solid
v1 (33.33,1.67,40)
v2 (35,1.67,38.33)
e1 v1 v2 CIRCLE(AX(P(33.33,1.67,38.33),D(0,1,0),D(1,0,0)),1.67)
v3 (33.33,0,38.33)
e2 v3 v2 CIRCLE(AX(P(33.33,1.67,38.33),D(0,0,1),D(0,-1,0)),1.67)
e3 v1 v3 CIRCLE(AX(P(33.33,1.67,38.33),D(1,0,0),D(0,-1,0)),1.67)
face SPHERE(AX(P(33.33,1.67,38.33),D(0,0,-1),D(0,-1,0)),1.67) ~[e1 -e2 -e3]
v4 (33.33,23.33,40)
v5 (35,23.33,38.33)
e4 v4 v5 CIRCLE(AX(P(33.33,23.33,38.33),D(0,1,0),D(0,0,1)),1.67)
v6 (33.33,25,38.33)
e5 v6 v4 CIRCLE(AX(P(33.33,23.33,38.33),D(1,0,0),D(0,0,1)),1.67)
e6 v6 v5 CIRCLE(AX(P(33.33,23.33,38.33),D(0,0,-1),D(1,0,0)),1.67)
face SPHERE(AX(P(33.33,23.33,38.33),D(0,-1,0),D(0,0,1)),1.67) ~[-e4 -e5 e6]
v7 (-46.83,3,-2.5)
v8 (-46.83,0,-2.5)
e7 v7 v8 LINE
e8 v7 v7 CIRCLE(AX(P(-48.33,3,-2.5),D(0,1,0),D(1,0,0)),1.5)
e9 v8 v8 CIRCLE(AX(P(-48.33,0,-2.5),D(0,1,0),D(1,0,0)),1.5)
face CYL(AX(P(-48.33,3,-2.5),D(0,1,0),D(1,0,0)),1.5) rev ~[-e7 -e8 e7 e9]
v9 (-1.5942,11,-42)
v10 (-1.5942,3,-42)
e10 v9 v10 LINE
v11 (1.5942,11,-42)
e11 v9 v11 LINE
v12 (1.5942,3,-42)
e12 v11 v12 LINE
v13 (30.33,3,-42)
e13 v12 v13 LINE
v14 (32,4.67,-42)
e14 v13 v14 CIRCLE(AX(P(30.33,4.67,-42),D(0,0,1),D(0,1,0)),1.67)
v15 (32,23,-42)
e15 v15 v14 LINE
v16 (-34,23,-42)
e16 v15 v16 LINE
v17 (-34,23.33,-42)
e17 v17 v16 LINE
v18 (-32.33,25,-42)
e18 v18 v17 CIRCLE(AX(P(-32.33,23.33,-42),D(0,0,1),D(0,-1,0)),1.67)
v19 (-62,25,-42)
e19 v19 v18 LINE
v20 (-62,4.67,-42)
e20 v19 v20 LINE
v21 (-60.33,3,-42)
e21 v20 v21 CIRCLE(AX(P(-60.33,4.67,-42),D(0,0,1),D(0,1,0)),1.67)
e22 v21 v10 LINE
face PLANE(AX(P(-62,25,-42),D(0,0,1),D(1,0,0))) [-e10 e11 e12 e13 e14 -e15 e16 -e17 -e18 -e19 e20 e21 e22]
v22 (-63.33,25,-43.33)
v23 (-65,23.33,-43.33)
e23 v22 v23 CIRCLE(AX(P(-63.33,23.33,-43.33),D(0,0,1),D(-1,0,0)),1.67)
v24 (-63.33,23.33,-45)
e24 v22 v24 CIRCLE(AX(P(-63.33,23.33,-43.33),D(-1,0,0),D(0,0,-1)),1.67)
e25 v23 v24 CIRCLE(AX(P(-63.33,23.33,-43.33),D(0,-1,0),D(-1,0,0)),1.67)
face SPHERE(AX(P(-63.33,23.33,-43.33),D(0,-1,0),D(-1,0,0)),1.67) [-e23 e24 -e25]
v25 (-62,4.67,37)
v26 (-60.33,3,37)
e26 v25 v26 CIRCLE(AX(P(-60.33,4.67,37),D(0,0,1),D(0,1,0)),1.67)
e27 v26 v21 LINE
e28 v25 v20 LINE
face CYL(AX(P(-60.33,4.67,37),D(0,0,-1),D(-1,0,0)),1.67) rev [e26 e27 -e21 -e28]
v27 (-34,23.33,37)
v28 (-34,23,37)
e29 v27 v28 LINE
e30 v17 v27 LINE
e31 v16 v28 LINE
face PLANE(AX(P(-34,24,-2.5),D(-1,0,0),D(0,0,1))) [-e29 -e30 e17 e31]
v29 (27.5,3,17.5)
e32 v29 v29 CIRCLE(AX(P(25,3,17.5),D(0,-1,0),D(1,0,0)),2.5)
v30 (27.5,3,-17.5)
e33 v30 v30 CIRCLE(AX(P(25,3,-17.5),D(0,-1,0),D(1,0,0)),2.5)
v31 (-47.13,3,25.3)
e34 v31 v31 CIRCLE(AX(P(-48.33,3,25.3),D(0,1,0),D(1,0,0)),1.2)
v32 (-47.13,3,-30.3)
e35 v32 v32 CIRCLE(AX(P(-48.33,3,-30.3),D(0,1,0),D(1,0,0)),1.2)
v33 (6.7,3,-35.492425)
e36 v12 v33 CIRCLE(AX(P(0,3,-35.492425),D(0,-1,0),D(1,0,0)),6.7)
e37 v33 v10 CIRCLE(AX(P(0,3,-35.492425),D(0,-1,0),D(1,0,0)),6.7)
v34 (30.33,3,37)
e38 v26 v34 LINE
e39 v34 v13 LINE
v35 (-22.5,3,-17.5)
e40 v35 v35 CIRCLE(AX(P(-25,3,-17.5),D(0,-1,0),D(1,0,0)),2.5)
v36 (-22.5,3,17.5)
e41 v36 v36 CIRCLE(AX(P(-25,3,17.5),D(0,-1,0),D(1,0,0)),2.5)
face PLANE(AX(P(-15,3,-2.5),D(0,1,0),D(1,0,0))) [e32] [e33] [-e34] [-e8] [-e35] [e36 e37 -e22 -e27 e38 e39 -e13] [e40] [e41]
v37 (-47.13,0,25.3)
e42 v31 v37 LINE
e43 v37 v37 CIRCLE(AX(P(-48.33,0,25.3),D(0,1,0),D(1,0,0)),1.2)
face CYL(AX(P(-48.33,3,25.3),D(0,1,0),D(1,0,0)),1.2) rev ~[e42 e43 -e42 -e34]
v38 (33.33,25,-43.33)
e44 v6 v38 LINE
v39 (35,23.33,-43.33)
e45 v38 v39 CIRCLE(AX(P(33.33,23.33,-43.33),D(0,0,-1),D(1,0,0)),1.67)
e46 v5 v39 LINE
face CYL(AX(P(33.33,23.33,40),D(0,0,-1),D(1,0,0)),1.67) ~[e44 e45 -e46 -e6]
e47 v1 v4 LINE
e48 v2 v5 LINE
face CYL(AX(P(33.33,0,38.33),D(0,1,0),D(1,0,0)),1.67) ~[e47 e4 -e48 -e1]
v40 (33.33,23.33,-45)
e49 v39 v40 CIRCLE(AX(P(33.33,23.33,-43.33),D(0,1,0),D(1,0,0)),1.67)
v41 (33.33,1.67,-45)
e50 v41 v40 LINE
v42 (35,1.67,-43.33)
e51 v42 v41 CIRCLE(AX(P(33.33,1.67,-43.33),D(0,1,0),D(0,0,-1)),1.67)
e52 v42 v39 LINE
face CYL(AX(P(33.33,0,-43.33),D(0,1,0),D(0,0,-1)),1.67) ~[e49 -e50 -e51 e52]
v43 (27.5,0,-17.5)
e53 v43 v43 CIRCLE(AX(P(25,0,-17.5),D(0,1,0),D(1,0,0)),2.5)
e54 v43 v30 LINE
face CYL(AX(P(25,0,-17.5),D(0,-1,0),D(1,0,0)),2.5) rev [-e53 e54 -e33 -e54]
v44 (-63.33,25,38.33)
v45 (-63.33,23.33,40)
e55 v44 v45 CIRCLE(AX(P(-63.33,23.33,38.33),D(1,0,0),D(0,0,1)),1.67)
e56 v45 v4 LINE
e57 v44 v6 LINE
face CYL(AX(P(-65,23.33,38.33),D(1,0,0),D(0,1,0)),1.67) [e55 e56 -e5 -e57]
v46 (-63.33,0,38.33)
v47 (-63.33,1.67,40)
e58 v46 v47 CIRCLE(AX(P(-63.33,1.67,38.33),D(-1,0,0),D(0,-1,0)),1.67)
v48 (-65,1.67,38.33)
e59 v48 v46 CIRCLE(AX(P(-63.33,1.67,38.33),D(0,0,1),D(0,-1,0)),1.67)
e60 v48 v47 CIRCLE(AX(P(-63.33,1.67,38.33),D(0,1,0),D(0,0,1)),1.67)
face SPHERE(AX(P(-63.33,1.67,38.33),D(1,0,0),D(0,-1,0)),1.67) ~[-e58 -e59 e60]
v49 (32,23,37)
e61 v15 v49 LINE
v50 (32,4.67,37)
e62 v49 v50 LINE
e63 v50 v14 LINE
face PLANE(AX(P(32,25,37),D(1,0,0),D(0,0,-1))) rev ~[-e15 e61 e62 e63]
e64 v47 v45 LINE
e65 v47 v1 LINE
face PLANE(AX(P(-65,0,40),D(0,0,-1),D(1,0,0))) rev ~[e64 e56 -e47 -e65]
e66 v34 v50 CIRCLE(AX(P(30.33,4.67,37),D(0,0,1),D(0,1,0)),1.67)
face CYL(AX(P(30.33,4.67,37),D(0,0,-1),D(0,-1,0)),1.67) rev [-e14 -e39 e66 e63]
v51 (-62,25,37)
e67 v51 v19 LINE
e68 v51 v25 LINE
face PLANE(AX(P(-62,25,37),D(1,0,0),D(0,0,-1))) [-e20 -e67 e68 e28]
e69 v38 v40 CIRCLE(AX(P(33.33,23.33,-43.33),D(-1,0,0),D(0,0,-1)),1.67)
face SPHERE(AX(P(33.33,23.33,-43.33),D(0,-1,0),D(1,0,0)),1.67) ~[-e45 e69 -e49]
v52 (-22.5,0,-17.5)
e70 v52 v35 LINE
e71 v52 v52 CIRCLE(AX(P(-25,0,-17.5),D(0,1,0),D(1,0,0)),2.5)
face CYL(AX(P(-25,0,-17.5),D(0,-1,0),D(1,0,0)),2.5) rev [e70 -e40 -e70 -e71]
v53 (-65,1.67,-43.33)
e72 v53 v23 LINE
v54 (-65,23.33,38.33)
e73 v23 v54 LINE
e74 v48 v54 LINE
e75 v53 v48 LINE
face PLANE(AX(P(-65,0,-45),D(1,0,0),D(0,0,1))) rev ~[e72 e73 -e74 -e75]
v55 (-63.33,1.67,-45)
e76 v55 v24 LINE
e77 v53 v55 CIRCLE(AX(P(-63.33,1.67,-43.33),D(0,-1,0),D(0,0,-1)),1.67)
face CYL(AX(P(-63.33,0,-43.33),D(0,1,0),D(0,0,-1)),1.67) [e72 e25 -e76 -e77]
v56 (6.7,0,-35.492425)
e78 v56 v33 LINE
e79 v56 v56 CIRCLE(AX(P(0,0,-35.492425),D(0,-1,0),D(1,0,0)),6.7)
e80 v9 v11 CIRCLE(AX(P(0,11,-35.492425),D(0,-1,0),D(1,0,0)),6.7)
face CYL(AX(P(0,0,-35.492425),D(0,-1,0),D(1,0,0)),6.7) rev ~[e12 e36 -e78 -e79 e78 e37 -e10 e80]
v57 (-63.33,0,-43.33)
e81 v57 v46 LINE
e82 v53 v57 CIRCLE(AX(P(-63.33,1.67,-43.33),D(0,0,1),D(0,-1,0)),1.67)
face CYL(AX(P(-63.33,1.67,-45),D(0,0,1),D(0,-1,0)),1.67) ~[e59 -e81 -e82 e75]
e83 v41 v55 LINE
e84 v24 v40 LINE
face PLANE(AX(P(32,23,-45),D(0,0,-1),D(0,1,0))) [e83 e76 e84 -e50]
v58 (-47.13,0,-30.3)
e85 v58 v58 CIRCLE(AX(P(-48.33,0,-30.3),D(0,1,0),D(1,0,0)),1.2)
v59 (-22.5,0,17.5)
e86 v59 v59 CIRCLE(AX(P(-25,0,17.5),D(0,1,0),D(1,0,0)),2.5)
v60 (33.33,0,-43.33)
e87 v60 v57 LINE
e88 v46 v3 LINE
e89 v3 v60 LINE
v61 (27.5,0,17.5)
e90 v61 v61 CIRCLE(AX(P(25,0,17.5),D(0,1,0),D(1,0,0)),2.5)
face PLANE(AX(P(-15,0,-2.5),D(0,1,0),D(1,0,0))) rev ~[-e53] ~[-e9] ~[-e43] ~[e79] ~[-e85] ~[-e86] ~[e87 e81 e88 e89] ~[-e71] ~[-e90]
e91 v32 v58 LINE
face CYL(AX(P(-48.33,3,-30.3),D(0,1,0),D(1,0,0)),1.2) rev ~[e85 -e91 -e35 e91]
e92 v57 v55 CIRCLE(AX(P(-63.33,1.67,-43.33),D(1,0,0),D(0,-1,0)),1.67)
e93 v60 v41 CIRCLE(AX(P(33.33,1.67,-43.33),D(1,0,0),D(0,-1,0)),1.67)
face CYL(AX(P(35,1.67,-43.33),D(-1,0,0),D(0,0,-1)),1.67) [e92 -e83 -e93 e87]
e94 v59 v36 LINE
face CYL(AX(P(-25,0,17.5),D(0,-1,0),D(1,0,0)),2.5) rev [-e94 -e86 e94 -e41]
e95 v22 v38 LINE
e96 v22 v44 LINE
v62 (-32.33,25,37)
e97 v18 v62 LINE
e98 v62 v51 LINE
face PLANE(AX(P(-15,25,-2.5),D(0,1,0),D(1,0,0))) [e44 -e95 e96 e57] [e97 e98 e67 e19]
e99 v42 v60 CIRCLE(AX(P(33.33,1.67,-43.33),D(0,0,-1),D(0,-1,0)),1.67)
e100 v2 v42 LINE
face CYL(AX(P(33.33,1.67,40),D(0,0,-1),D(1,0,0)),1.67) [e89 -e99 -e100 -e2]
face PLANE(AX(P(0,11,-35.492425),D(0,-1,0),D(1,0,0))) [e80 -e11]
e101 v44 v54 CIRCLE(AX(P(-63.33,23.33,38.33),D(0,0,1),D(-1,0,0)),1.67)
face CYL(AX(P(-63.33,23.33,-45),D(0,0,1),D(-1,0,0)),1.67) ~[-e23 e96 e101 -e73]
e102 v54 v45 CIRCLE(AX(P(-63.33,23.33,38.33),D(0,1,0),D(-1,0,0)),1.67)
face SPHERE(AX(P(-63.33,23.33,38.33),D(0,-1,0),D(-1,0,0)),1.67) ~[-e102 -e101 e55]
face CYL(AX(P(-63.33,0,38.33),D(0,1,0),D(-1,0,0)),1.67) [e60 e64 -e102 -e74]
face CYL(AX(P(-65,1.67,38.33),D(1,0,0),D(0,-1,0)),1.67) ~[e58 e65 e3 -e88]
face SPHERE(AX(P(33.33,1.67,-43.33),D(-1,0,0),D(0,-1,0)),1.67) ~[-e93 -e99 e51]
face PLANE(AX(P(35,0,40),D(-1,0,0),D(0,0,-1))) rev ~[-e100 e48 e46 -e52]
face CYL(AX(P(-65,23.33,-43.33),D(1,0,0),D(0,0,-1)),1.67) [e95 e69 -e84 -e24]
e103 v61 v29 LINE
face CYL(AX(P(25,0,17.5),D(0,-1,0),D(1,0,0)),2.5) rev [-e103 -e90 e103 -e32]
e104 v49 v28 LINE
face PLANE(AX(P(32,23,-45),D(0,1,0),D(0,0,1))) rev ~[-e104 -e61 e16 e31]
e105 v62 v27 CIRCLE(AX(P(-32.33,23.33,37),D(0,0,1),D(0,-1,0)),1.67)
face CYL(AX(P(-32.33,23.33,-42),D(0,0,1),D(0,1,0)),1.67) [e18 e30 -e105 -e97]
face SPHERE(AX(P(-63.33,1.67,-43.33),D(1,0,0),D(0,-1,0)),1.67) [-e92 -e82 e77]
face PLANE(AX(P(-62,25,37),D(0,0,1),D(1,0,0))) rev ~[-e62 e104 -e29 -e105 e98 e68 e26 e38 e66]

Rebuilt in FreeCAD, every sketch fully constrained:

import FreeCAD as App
import Part
import Sketcher
Q = App.Units.Quantity


def edges_at(feature, points):
    """Names of the edges that pass closest to the given points."""
    edges = feature.Shape.Edges
    near = lambda p: min(range(len(edges)), key=lambda i: edges[i].distToShape(Part.Vertex(*p))[0])
    return sorted({f"Edge{near(p) + 1}" for p in points})

doc = App.newDocument("Part")
body = doc.addObject("PartDesign::Body", "Body")

sketch1 = body.newObject("Sketcher::SketchObject", "Sketch")
sketch1.AttachmentSupport = (doc.getObject("XZ_Plane"), [""])
sketch1.MapMode = "FlatFace"
sketch1.addGeometry([
    Part.LineSegment(App.Vector(-65, -45, 0), App.Vector(-65, 40, 0)),
    Part.LineSegment(App.Vector(-65, 40, 0), App.Vector(35, 40, 0)),
    Part.LineSegment(App.Vector(35, 40, 0), App.Vector(35, -45, 0)),
    Part.LineSegment(App.Vector(35, -45, 0), App.Vector(-65, -45, 0)),
    Part.Circle(App.Vector(-25, 17.5, 0), App.Vector(0, 0, 1), 2.5),
    Part.Circle(App.Vector(25, 17.5, 0), App.Vector(0, 0, 1), 2.5),
    Part.Circle(App.Vector(-25, -17.5, 0), App.Vector(0, 0, 1), 2.5),
    Part.Circle(App.Vector(25, -17.5, 0), App.Vector(0, 0, 1), 2.5),
], False)
sketch1.addConstraint([
    Sketcher.Constraint("Coincident", 0, 2, 1, 1),
    Sketcher.Constraint("Coincident", 1, 2, 2, 1),
    Sketcher.Constraint("Coincident", 2, 2, 3, 1),
    Sketcher.Constraint("Coincident", 3, 2, 0, 1),
    Sketcher.Constraint("Vertical", 0),
    Sketcher.Constraint("Horizontal", 1),
    Sketcher.Constraint("Vertical", 2),
    Sketcher.Constraint("Horizontal", 3),
    Sketcher.Constraint("Equal", 4, 5),
    Sketcher.Constraint("Equal", 5, 6),
    Sketcher.Constraint("Equal", 6, 7),
    Sketcher.Constraint("Symmetric", 5, 3, 6, 3, -1, 1),
    Sketcher.Constraint("Symmetric", 4, 3, 7, 3, -1, 1),
    Sketcher.Constraint("Symmetric", 4, 3, 5, 3, -2),
    Sketcher.Constraint("Diameter", 4, Q("5 mm")),
    Sketcher.Constraint("DistanceX", 1, 1, 1, 2, Q("100 mm")),
    Sketcher.Constraint("DistanceY", 0, 1, 0, 2, Q("85 mm")),
    Sketcher.Constraint("DistanceX", 4, 3, -1, 1, Q("25 mm")),
    Sketcher.Constraint("DistanceX", 0, 2, -1, 1, Q("65 mm")),
    Sketcher.Constraint("DistanceY", -1, 1, 0, 2, Q("40 mm")),
    Sketcher.Constraint("DistanceY", 6, 3, 4, 3, Q("35 mm")),
])
pad1 = body.newObject("PartDesign::Pad", "Pad")
pad1.Profile = sketch1
pad1.Length = 25
pad1.Reversed = True

sketch2 = body.newObject("Sketcher::SketchObject", "Sketch001")
sketch2.AttachmentSupport = (doc.getObject("XZ_Plane"), [""])
sketch2.MapMode = "FlatFace"
sketch2.AttachmentOffset = App.Placement(App.Vector(0, 0, -25), App.Rotation())
sketch2.addGeometry([
    Part.LineSegment(App.Vector(-62, -42, 0), App.Vector(-62, 37, 0)),
    Part.LineSegment(App.Vector(-62, 37, 0), App.Vector(32, 37, 0)),
    Part.LineSegment(App.Vector(32, 37, 0), App.Vector(32, -42, 0)),
    Part.LineSegment(App.Vector(32, -42, 0), App.Vector(-62, -42, 0)),
], False)
sketch2.addConstraint([
    Sketcher.Constraint("Coincident", 0, 2, 1, 1),
    Sketcher.Constraint("Coincident", 1, 2, 2, 1),
    Sketcher.Constraint("Coincident", 2, 2, 3, 1),
    Sketcher.Constraint("Coincident", 3, 2, 0, 1),
    Sketcher.Constraint("Vertical", 0),
    Sketcher.Constraint("Horizontal", 1),
    Sketcher.Constraint("Vertical", 2),
    Sketcher.Constraint("Horizontal", 3),
    Sketcher.Constraint("DistanceX", 1, 1, 1, 2, Q("94 mm")),
    Sketcher.Constraint("DistanceY", 0, 1, 0, 2, Q("79 mm")),
    Sketcher.Constraint("DistanceX", 0, 2, -1, 1, Q("62 mm")),
    Sketcher.Constraint("DistanceY", -1, 1, 0, 2, Q("37 mm")),
])
pocket1 = body.newObject("PartDesign::Pocket", "Pocket")
pocket1.Profile = sketch2
pocket1.Length = 22
pocket1.Reversed = True

sketch3 = body.newObject("Sketcher::SketchObject", "Sketch002")
sketch3.AttachmentSupport = (doc.getObject("YZ_Plane"), [""])
sketch3.MapMode = "FlatFace"
sketch3.AttachmentOffset = App.Placement(App.Vector(0, 0, 32), App.Rotation())
sketch3.addGeometry([
    Part.LineSegment(App.Vector(25, -45, 0), App.Vector(23, -45, 0)),
    Part.LineSegment(App.Vector(23, -45, 0), App.Vector(23, 40, 0)),
    Part.LineSegment(App.Vector(23, 40, 0), App.Vector(25, 40, 0)),
    Part.LineSegment(App.Vector(25, 40, 0), App.Vector(25, -45, 0)),
], False)
sketch3.addConstraint([
    Sketcher.Constraint("Coincident", 0, 2, 1, 1),
    Sketcher.Constraint("Coincident", 1, 2, 2, 1),
    Sketcher.Constraint("Coincident", 2, 2, 3, 1),
    Sketcher.Constraint("Coincident", 3, 2, 0, 1),
    Sketcher.Constraint("Horizontal", 0),
    Sketcher.Constraint("Vertical", 1),
    Sketcher.Constraint("Horizontal", 2),
    Sketcher.Constraint("Vertical", 3),
    Sketcher.Constraint("DistanceX", 0, 2, 0, 1, Q("2 mm")),
    Sketcher.Constraint("DistanceY", 1, 1, 1, 2, Q("85 mm")),
    Sketcher.Constraint("DistanceX", -1, 1, 0, 2, Q("23 mm")),
    Sketcher.Constraint("DistanceY", 0, 2, -1, 1, Q("45 mm")),
])
pad2 = body.newObject("PartDesign::Pad", "Pad001")
pad2.Profile = sketch3
pad2.Length = 66
pad2.Reversed = True

sketch4 = body.newObject("Sketcher::SketchObject", "Sketch003")
sketch4.AttachmentSupport = (doc.getObject("XZ_Plane"), [""])
sketch4.MapMode = "FlatFace"
sketch4.addGeometry(Part.Circle(App.Vector(0, -35, 0), App.Vector(0, 0, 1), 7), False)
sketch4.addConstraint([
    Sketcher.Constraint("PointOnObject", 0, 3, -2),
    Sketcher.Constraint("Diameter", 0, Q("13.4 mm")),
    Sketcher.Constraint("DistanceY", 0, 3, -1, 1, Q("35.492425 mm")),
])
pocket2 = body.newObject("PartDesign::Pocket", "Pocket001")
pocket2.Profile = sketch4
pocket2.Length = 11
doc.recompute()

fillet = body.newObject("PartDesign::Fillet", "Fillet")
fillet.Base = (pocket2, edges_at(pocket2, [
    (-15, 0, -45),
    (35, 0, -2.5),
    (-15, 0, 40),
    (-65, 0, -2.5),
    (-65, 12.5, -45),
    (35, 12.5, -45),
    (35, 12.5, 40),
    (-65, 12.5, 40),
    (-65, 25, -2.5),
    (32, 3, -2.5),
    (-62, 3, -2.5),
    (-15, 25, 40),
    (35, 25, -2.5),
    (-15, 25, -45),
    (-34, 25, -2.5),
]))
fillet.Radius = 1.67

sketch5 = body.newObject("Sketcher::SketchObject", "Sketch004")
sketch5.AttachmentSupport = (doc.getObject("XZ_Plane"), [""])
sketch5.MapMode = "FlatFace"
sketch5.AttachmentOffset = App.Placement(App.Vector(0, 0, -3), App.Rotation())
sketch5.addGeometry([
    Part.Circle(App.Vector(-48.3, -2.5, 0), App.Vector(0, 0, 1), 1.5),
    Part.Circle(App.Vector(-48.3, -30.3, 0), App.Vector(0, 0, 1), 1.2),
    Part.Circle(App.Vector(-48.3, 25.3, 0), App.Vector(0, 0, 1), 1.2),
], False)
sketch5.addConstraint([
    Sketcher.Constraint("Equal", 1, 2),
    Sketcher.Constraint("Vertical", 0, 3, 1, 3),
    Sketcher.Constraint("Vertical", 1, 3, 2, 3),
    Sketcher.Constraint("Diameter", 0, Q("3 mm")),
    Sketcher.Constraint("Diameter", 1, Q("2.4 mm")),
    Sketcher.Constraint("DistanceY", 0, 3, -1, 1, Q("2.5 mm")),
    Sketcher.Constraint("DistanceY", 1, 3, -1, 1, Q("30.3 mm")),
    Sketcher.Constraint("DistanceY", -1, 1, 2, 3, Q("25.3 mm")),
    Sketcher.Constraint("DistanceX", 0, 3, -1, 1, Q("48.33 mm")),
])
pocket3 = body.newObject("PartDesign::Pocket", "Pocket002")
pocket3.Profile = sketch5
pocket3.Length = 10
pocket3.Reversed = True

doc.recompute()
